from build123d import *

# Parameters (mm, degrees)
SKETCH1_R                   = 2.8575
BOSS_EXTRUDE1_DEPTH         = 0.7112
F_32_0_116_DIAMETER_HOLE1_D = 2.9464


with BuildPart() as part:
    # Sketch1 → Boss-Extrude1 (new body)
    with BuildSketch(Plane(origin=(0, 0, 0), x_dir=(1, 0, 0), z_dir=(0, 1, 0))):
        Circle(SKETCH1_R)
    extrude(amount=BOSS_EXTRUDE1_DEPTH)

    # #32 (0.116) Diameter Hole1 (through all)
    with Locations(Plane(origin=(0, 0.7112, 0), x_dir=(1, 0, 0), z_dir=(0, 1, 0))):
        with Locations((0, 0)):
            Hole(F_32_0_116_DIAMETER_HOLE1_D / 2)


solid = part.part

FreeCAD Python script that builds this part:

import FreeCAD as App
import Part
import Sketcher
Q = App.Units.Quantity

doc = App.newDocument("Part")
params = doc.addObject("Spreadsheet::Sheet", "Params")
for row, (alias, value) in enumerate([
    ("sketch1_diameter", "0.225 in"),
    ("pad1_length", "0.028 in"),
    ("sketch2_diameter", "0.116 in"),
    ("hole_diameter", "0.116 in"),
], start=1):
    params.set(f"A{row}", alias)
    params.set(f"B{row}", "=" + value)
    params.setAlias(f"B{row}", alias)

body = doc.addObject("PartDesign::Body", "Body")

# Sketch on XZ plane
sketch1 = body.newObject("Sketcher::SketchObject", "Sketch")
sketch1.AttachmentSupport = (doc.getObject("XZ_Plane"), [""])
sketch1.MapMode = "FlatFace"
sketch1.addGeometry(Part.Circle(App.Vector(0, 0, 0), App.Vector(0, 0, 1), 2.9), False)
sketch1.addConstraint([
    Sketcher.Constraint("Coincident", 0, 3, -1, 1),
    Sketcher.Constraint("Diameter", 0, Q("0.225 in")),
])
sketch1.setExpression("Constraints[1]", "Params.sketch1_diameter")
pad1 = body.newObject("PartDesign::Pad", "Pad")
pad1.Profile = sketch1
pad1.setExpression("Length", "Params.pad1_length")
pad1.Reversed = True

# Sketch on XZ plane
sketch2 = body.newObject("Sketcher::SketchObject", "Sketch001")
sketch2.AttachmentSupport = (doc.getObject("XZ_Plane"), [""])
sketch2.MapMode = "FlatFace"
sketch2.AttachmentOffset = App.Placement(App.Vector(0, 0, -0.028 * 25.4), App.Rotation())
sketch2.addGeometry(Part.Circle(App.Vector(0, 0, 0), App.Vector(0, 0, 1), 1.5), False)
sketch2.addConstraint([
    Sketcher.Constraint("Coincident", 0, 3, -1, 1),
    Sketcher.Constraint("Diameter", 0, Q("0.116 in")),
])
sketch2.setExpression("Constraints[1]", "Params.sketch2_diameter")
doc.recompute()
hole = body.newObject("PartDesign::Hole", "Hole")
hole.Profile = sketch2
hole.ThreadType = "None"
hole.setExpression("Diameter", "Params.hole_diameter")
hole.DepthType = "ThroughAll"
hole.Reversed = True

doc.recompute()
